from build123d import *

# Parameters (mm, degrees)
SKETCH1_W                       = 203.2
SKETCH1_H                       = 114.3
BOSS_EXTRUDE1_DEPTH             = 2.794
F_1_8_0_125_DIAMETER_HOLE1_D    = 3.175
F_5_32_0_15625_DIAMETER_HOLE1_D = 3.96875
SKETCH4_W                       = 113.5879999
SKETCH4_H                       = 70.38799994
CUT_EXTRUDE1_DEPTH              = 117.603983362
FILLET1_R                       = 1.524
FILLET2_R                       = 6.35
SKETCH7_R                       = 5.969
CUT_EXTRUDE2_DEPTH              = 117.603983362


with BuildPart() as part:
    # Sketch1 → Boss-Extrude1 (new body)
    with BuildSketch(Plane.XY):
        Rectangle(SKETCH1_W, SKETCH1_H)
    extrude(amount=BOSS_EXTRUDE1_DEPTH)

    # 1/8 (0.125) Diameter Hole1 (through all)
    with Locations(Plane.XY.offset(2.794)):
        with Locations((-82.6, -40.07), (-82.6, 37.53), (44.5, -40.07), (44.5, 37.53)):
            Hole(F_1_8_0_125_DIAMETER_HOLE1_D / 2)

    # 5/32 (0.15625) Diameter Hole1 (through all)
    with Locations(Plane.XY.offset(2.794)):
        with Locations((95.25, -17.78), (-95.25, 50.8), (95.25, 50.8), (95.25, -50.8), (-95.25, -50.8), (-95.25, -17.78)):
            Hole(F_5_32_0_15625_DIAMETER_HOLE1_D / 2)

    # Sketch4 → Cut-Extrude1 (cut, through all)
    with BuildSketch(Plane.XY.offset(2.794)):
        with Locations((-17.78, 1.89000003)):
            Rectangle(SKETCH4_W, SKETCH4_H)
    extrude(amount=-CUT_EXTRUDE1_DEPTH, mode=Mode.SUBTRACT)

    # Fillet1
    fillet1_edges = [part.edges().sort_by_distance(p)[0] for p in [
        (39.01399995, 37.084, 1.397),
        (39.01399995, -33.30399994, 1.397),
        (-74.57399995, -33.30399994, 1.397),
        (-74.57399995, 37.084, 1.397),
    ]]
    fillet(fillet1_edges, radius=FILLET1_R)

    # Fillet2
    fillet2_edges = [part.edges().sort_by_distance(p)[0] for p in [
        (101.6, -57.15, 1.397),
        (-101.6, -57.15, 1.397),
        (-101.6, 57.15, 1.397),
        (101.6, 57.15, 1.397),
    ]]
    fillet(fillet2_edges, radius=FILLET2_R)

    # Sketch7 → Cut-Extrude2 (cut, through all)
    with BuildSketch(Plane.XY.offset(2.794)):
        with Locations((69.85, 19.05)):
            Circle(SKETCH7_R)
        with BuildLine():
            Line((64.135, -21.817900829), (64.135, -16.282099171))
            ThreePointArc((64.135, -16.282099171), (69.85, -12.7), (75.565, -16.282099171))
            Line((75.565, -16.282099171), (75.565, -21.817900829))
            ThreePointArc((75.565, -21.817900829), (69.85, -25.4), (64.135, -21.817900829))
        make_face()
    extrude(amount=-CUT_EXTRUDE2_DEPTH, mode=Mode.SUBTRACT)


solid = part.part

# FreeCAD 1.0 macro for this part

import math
import FreeCAD as App
import Part
import Sketcher
from FreeCAD import Vector
Q = App.Units.Quantity


def edges_at(feature, points):
    """Names of the edges that pass closest to the given points."""
    edges = feature.Shape.Edges
    near = lambda p: min(range(len(edges)), key=lambda i: edges[i].distToShape(Part.Vertex(*p))[0])
    return sorted({f"Edge{near(p) + 1}" for p in points})


def add_polygon(sketch, points):
    """Adds a closed chain of lines whose ends are joined by coincident constraints."""
    first, n = sketch.GeometryCount, len(points)
    for a, b in zip(points, points[1:] + points[:1]):
        sketch.addGeometry(Part.LineSegment(App.Vector(*a, 0), App.Vector(*b, 0)), False)
    for i in range(n):
        sketch.addConstraint(Sketcher.Constraint("Coincident", first + i, 2, first + (i + 1) % n, 1))

doc = App.newDocument("Part")
body = doc.addObject("PartDesign::Body", "Body")

sketch1 = doc.addObject("Sketcher::SketchObject", "Sketch")
body.addObject(sketch1)
sketch1.AttachmentSupport = (doc.XY_Plane, [""])
sketch1.MapMode = "FlatFace"
add_polygon(sketch1, [(-102, 57), (-102, -57), (102, -57), (102, 57)])
sketch1.addConstraint(Sketcher.Constraint("Vertical", 0))
sketch1.addConstraint(Sketcher.Constraint("Horizontal", 1))
sketch1.addConstraint(Sketcher.Constraint("Vertical", 2))
sketch1.addConstraint(Sketcher.Constraint("Horizontal", 3))
sketch1.addConstraint(Sketcher.Constraint("Symmetric", 0, 2, 2, 2, -1, 1))
sketch1.addConstraint(Sketcher.Constraint("DistanceX", 1, 1, 1, 2, Q("8 in")))
sketch1.addConstraint(Sketcher.Constraint("DistanceY", 0, 2, 0, 1, Q("4.5 in")))
pad1 = doc.addObject("PartDesign::Pad", "Pad")
body.addObject(pad1)
pad1.Profile = sketch1
pad1.Length = Q("0.11 in")

sketch2 = doc.addObject("Sketcher::SketchObject", "Sketch001")
body.addObject(sketch2)
sketch2.AttachmentSupport = (doc.XY_Plane, [""])
sketch2.MapMode = "FlatFace"
sketch2.AttachmentOffset = App.Placement(Vector(0, 0, 0.11 * 25.4), App.Rotation())
sketch2.addGeometry(Part.Circle(Vector(-82.6, -40.1, 0), Vector(0, 0, 1), 1.6), False)
sketch2.addGeometry(Part.Circle(Vector(-82.6, 37.5, 0), Vector(0, 0, 1), 1.6), False)
sketch2.addGeometry(Part.Circle(Vector(44.5, -40.1, 0), Vector(0, 0, 1), 1.6), False)
sketch2.addGeometry(Part.Circle(Vector(44.5, 37.5, 0), Vector(0, 0, 1), 1.6), False)
sketch2.addConstraint(Sketcher.Constraint("Equal", 0, 1))
sketch2.addConstraint(Sketcher.Constraint("Equal", 1, 2))
sketch2.addConstraint(Sketcher.Constraint("Equal", 2, 3))
sketch2.addConstraint(Sketcher.Constraint("Horizontal", 0, 3, 2, 3))
sketch2.addConstraint(Sketcher.Constraint("Horizontal", 1, 3, 3, 3))
sketch2.addConstraint(Sketcher.Constraint("Vertical", 0, 3, 1, 3))
sketch2.addConstraint(Sketcher.Constraint("Vertical", 2, 3, 3, 3))
sketch2.addConstraint(Sketcher.Constraint("Diameter", 0, Q("0.125 in")))
sketch2.addConstraint(Sketcher.Constraint("DistanceX", 0, 3, -1, 1, 82.6))
sketch2.addConstraint(Sketcher.Constraint("DistanceY", 0, 3, -1, 1, 40.07))
sketch2.addConstraint(Sketcher.Constraint("DistanceY", -1, 1, 1, 3, 37.53))
sketch2.addConstraint(Sketcher.Constraint("DistanceX", -1, 1, 2, 3, 44.5))
doc.recompute()
hole = doc.addObject("PartDesign::Hole", "Hole")
body.addObject(hole)
hole.Profile = sketch2
hole.ThreadType = "None"
hole.Diameter = Q("0.125 in")
hole.DepthType = "ThroughAll"

sketch3 = doc.addObject("Sketcher::SketchObject", "Sketch002")
body.addObject(sketch3)
sketch3.AttachmentSupport = (doc.XY_Plane, [""])
sketch3.MapMode = "FlatFace"
sketch3.AttachmentOffset = App.Placement(Vector(0, 0, 0.11 * 25.4), App.Rotation())
sketch3.addGeometry(Part.Circle(Vector(95.2, -17.8, 0), Vector(0, 0, 1), 2), False)
sketch3.addGeometry(Part.Circle(Vector(-95.2, 50.8, 0), Vector(0, 0, 1), 2), False)
sketch3.addGeometry(Part.Circle(Vector(95.2, 50.8, 0), Vector(0, 0, 1), 2), False)
sketch3.addGeometry(Part.Circle(Vector(95.2, -50.8, 0), Vector(0, 0, 1), 2), False)
sketch3.addGeometry(Part.Circle(Vector(-95.2, -50.8, 0), Vector(0, 0, 1), 2), False)
sketch3.addGeometry(Part.Circle(Vector(-95.2, -17.8, 0), Vector(0, 0, 1), 2), False)
sketch3.addConstraint(Sketcher.Constraint("Equal", 0, 1))
sketch3.addConstraint(Sketcher.Constraint("Equal", 1, 2))
sketch3.addConstraint(Sketcher.Constraint("Equal", 2, 3))
sketch3.addConstraint(Sketcher.Constraint("Equal", 3, 4))
sketch3.addConstraint(Sketcher.Constraint("Equal", 4, 5))
sketch3.addConstraint(Sketcher.Constraint("Symmetric", 1, 3, 3, 3, -1, 1))
sketch3.addConstraint(Sketcher.Constraint("Symmetric", 2, 3, 4, 3, -1, 1))
sketch3.addConstraint(Sketcher.Constraint("Symmetric", 1, 3, 2, 3, -2))
sketch3.addConstraint(Sketcher.Constraint("Symmetric", 0, 3, 5, 3, -2))
sketch3.addConstraint(Sketcher.Constraint("Vertical", 0, 3, 2, 3))
sketch3.addConstraint(Sketcher.Constraint("Diameter", 0, Q("0.15625 in")))
sketch3.addConstraint(Sketcher.Constraint("DistanceY", -1, 1, 1, 3, Q("2 in")))
sketch3.addConstraint(Sketcher.Constraint("DistanceY", 0, 3, -1, 1, Q("0.7 in")))
sketch3.addConstraint(Sketcher.Constraint("DistanceX", 1, 3, 0, 3, Q("7.5 in")))
doc.recompute()
hole2 = doc.addObject("PartDesign::Hole", "Hole001")
body.addObject(hole2)
hole2.Profile = sketch3
hole2.ThreadType = "None"
hole2.Diameter = Q("0.15625 in")
hole2.DepthType = "ThroughAll"

sketch4 = doc.addObject("Sketcher::SketchObject", "Sketch003")
body.addObject(sketch4)
sketch4.AttachmentSupport = (doc.XY_Plane, [""])
sketch4.MapMode = "FlatFace"
sketch4.AttachmentOffset = App.Placement(Vector(0, 0, 0.11 * 25.4), App.Rotation())
add_polygon(sketch4, [(-75, 37), (-75, -33), (39, -33), (39, 37)])
sketch4.addConstraint(Sketcher.Constraint("Vertical", 0))
sketch4.addConstraint(Sketcher.Constraint("Horizontal", 1))
sketch4.addConstraint(Sketcher.Constraint("Vertical", 2))
sketch4.addConstraint(Sketcher.Constraint("Horizontal", 3))
sketch4.addConstraint(Sketcher.Constraint("DistanceY", -1, 1, 2, 2, Q("1.46 in")))
sketch4.addConstraint(Sketcher.Constraint("DistanceX", 1, 1, 1, 2, 113.588))
sketch4.addConstraint(Sketcher.Constraint("DistanceY", 0, 2, 0, 1, 70.388))
sketch4.addConstraint(Sketcher.Constraint("DistanceX", 0, 2, -1, 1, 74.574))
pocket1 = doc.addObject("PartDesign::Pocket", "Pocket")
body.addObject(pocket1)
pocket1.Profile = sketch4
pocket1.Type = "ThroughAll"
doc.recompute()

fillet = doc.addObject("PartDesign::Fillet", "Fillet")
body.addObject(fillet)
fillet.Base = (pocket1, edges_at(pocket1, [
    (39.014, 37.084, 1.397),
    (39.014, -33.304, 1.397),
    (-74.574, -33.304, 1.397),
    (-74.574, 37.084, 1.397),
]))
fillet.Radius = Q("0.06 in")
doc.recompute()

fillet2 = doc.addObject("PartDesign::Fillet", "Fillet001")
body.addObject(fillet2)
fillet2.Base = (fillet, edges_at(fillet, [
    (101.6, -57.15, 1.397),
    (-101.6, -57.15, 1.397),
    (-101.6, 57.15, 1.397),
    (101.6, 57.15, 1.397),
]))
fillet2.Radius = Q("0.25 in")

sketch5 = doc.addObject("Sketcher::SketchObject", "Sketch004")
body.addObject(sketch5)
sketch5.AttachmentSupport = (doc.XY_Plane, [""])
sketch5.MapMode = "FlatFace"
sketch5.AttachmentOffset = App.Placement(Vector(0, 0, 0.11 * 25.4), App.Rotation())
sketch5.addGeometry(Part.Circle(Vector(70, 19, 0), Vector(0, 0, 1), 6), False)
sketch5.addGeometry(Part.LineSegment(Vector(64, -16, 0), Vector(64, -22, 0)), False)
sketch5.addGeometry(Part.ArcOfCircle(Part.Circle(Vector(70, -19, 0), Vector(0, 0, 1), 6), math.radians(-154), math.radians(-26)), False)
sketch5.addGeometry(Part.LineSegment(Vector(76, -22, 0), Vector(76, -16, 0)), False)
sketch5.addGeometry(Part.ArcOfCircle(Part.Circle(Vector(70, -19, 0), Vector(0, 0, 1), 6), math.radians(26), math.radians(154)), False)
sketch5.addConstraint(Sketcher.Constraint("Coincident", 1, 2, 2, 1))
sketch5.addConstraint(Sketcher.Constraint("Coincident", 2, 2, 3, 1))
sketch5.addConstraint(Sketcher.Constraint("Coincident", 3, 2, 4, 1))
sketch5.addConstraint(Sketcher.Constraint("Coincident", 4, 2, 1, 1))
sketch5.addConstraint(Sketcher.Constraint("Vertical", 1))
sketch5.addConstraint(Sketcher.Constraint("Vertical", 3))
sketch5.addConstraint(Sketcher.Constraint("Coincident", 4, 3, 2, 3))
sketch5.addConstraint(Sketcher.Constraint("Equal", 2, 4))
sketch5.addConstraint(Sketcher.Constraint("Symmetric", 0, 3, 2, 3, -1))
sketch5.addConstraint(Sketcher.Constraint("Horizontal", 1, 2, 2, 2))
sketch5.addConstraint(Sketcher.Constraint("Diameter", 0, Q("0.47 in")))
sketch5.addConstraint(Sketcher.Constraint("Radius", 2, Q("0.25 in")))
sketch5.addConstraint(Sketcher.Constraint("DistanceY", 2, 3, 0, 3, Q("1.5 in")))
sketch5.addConstraint(Sketcher.Constraint("DistanceX", -1, 1, 0, 3, Q("2.75 in")))
sketch5.addConstraint(Sketcher.Constraint("DistanceX", 1, 2, 2, 2, Q("0.45 in")))
pocket2 = doc.addObject("PartDesign::Pocket", "Pocket001")
body.addObject(pocket2)
pocket2.Profile = sketch5
pocket2.Type = "ThroughAll"

doc.recompute()
